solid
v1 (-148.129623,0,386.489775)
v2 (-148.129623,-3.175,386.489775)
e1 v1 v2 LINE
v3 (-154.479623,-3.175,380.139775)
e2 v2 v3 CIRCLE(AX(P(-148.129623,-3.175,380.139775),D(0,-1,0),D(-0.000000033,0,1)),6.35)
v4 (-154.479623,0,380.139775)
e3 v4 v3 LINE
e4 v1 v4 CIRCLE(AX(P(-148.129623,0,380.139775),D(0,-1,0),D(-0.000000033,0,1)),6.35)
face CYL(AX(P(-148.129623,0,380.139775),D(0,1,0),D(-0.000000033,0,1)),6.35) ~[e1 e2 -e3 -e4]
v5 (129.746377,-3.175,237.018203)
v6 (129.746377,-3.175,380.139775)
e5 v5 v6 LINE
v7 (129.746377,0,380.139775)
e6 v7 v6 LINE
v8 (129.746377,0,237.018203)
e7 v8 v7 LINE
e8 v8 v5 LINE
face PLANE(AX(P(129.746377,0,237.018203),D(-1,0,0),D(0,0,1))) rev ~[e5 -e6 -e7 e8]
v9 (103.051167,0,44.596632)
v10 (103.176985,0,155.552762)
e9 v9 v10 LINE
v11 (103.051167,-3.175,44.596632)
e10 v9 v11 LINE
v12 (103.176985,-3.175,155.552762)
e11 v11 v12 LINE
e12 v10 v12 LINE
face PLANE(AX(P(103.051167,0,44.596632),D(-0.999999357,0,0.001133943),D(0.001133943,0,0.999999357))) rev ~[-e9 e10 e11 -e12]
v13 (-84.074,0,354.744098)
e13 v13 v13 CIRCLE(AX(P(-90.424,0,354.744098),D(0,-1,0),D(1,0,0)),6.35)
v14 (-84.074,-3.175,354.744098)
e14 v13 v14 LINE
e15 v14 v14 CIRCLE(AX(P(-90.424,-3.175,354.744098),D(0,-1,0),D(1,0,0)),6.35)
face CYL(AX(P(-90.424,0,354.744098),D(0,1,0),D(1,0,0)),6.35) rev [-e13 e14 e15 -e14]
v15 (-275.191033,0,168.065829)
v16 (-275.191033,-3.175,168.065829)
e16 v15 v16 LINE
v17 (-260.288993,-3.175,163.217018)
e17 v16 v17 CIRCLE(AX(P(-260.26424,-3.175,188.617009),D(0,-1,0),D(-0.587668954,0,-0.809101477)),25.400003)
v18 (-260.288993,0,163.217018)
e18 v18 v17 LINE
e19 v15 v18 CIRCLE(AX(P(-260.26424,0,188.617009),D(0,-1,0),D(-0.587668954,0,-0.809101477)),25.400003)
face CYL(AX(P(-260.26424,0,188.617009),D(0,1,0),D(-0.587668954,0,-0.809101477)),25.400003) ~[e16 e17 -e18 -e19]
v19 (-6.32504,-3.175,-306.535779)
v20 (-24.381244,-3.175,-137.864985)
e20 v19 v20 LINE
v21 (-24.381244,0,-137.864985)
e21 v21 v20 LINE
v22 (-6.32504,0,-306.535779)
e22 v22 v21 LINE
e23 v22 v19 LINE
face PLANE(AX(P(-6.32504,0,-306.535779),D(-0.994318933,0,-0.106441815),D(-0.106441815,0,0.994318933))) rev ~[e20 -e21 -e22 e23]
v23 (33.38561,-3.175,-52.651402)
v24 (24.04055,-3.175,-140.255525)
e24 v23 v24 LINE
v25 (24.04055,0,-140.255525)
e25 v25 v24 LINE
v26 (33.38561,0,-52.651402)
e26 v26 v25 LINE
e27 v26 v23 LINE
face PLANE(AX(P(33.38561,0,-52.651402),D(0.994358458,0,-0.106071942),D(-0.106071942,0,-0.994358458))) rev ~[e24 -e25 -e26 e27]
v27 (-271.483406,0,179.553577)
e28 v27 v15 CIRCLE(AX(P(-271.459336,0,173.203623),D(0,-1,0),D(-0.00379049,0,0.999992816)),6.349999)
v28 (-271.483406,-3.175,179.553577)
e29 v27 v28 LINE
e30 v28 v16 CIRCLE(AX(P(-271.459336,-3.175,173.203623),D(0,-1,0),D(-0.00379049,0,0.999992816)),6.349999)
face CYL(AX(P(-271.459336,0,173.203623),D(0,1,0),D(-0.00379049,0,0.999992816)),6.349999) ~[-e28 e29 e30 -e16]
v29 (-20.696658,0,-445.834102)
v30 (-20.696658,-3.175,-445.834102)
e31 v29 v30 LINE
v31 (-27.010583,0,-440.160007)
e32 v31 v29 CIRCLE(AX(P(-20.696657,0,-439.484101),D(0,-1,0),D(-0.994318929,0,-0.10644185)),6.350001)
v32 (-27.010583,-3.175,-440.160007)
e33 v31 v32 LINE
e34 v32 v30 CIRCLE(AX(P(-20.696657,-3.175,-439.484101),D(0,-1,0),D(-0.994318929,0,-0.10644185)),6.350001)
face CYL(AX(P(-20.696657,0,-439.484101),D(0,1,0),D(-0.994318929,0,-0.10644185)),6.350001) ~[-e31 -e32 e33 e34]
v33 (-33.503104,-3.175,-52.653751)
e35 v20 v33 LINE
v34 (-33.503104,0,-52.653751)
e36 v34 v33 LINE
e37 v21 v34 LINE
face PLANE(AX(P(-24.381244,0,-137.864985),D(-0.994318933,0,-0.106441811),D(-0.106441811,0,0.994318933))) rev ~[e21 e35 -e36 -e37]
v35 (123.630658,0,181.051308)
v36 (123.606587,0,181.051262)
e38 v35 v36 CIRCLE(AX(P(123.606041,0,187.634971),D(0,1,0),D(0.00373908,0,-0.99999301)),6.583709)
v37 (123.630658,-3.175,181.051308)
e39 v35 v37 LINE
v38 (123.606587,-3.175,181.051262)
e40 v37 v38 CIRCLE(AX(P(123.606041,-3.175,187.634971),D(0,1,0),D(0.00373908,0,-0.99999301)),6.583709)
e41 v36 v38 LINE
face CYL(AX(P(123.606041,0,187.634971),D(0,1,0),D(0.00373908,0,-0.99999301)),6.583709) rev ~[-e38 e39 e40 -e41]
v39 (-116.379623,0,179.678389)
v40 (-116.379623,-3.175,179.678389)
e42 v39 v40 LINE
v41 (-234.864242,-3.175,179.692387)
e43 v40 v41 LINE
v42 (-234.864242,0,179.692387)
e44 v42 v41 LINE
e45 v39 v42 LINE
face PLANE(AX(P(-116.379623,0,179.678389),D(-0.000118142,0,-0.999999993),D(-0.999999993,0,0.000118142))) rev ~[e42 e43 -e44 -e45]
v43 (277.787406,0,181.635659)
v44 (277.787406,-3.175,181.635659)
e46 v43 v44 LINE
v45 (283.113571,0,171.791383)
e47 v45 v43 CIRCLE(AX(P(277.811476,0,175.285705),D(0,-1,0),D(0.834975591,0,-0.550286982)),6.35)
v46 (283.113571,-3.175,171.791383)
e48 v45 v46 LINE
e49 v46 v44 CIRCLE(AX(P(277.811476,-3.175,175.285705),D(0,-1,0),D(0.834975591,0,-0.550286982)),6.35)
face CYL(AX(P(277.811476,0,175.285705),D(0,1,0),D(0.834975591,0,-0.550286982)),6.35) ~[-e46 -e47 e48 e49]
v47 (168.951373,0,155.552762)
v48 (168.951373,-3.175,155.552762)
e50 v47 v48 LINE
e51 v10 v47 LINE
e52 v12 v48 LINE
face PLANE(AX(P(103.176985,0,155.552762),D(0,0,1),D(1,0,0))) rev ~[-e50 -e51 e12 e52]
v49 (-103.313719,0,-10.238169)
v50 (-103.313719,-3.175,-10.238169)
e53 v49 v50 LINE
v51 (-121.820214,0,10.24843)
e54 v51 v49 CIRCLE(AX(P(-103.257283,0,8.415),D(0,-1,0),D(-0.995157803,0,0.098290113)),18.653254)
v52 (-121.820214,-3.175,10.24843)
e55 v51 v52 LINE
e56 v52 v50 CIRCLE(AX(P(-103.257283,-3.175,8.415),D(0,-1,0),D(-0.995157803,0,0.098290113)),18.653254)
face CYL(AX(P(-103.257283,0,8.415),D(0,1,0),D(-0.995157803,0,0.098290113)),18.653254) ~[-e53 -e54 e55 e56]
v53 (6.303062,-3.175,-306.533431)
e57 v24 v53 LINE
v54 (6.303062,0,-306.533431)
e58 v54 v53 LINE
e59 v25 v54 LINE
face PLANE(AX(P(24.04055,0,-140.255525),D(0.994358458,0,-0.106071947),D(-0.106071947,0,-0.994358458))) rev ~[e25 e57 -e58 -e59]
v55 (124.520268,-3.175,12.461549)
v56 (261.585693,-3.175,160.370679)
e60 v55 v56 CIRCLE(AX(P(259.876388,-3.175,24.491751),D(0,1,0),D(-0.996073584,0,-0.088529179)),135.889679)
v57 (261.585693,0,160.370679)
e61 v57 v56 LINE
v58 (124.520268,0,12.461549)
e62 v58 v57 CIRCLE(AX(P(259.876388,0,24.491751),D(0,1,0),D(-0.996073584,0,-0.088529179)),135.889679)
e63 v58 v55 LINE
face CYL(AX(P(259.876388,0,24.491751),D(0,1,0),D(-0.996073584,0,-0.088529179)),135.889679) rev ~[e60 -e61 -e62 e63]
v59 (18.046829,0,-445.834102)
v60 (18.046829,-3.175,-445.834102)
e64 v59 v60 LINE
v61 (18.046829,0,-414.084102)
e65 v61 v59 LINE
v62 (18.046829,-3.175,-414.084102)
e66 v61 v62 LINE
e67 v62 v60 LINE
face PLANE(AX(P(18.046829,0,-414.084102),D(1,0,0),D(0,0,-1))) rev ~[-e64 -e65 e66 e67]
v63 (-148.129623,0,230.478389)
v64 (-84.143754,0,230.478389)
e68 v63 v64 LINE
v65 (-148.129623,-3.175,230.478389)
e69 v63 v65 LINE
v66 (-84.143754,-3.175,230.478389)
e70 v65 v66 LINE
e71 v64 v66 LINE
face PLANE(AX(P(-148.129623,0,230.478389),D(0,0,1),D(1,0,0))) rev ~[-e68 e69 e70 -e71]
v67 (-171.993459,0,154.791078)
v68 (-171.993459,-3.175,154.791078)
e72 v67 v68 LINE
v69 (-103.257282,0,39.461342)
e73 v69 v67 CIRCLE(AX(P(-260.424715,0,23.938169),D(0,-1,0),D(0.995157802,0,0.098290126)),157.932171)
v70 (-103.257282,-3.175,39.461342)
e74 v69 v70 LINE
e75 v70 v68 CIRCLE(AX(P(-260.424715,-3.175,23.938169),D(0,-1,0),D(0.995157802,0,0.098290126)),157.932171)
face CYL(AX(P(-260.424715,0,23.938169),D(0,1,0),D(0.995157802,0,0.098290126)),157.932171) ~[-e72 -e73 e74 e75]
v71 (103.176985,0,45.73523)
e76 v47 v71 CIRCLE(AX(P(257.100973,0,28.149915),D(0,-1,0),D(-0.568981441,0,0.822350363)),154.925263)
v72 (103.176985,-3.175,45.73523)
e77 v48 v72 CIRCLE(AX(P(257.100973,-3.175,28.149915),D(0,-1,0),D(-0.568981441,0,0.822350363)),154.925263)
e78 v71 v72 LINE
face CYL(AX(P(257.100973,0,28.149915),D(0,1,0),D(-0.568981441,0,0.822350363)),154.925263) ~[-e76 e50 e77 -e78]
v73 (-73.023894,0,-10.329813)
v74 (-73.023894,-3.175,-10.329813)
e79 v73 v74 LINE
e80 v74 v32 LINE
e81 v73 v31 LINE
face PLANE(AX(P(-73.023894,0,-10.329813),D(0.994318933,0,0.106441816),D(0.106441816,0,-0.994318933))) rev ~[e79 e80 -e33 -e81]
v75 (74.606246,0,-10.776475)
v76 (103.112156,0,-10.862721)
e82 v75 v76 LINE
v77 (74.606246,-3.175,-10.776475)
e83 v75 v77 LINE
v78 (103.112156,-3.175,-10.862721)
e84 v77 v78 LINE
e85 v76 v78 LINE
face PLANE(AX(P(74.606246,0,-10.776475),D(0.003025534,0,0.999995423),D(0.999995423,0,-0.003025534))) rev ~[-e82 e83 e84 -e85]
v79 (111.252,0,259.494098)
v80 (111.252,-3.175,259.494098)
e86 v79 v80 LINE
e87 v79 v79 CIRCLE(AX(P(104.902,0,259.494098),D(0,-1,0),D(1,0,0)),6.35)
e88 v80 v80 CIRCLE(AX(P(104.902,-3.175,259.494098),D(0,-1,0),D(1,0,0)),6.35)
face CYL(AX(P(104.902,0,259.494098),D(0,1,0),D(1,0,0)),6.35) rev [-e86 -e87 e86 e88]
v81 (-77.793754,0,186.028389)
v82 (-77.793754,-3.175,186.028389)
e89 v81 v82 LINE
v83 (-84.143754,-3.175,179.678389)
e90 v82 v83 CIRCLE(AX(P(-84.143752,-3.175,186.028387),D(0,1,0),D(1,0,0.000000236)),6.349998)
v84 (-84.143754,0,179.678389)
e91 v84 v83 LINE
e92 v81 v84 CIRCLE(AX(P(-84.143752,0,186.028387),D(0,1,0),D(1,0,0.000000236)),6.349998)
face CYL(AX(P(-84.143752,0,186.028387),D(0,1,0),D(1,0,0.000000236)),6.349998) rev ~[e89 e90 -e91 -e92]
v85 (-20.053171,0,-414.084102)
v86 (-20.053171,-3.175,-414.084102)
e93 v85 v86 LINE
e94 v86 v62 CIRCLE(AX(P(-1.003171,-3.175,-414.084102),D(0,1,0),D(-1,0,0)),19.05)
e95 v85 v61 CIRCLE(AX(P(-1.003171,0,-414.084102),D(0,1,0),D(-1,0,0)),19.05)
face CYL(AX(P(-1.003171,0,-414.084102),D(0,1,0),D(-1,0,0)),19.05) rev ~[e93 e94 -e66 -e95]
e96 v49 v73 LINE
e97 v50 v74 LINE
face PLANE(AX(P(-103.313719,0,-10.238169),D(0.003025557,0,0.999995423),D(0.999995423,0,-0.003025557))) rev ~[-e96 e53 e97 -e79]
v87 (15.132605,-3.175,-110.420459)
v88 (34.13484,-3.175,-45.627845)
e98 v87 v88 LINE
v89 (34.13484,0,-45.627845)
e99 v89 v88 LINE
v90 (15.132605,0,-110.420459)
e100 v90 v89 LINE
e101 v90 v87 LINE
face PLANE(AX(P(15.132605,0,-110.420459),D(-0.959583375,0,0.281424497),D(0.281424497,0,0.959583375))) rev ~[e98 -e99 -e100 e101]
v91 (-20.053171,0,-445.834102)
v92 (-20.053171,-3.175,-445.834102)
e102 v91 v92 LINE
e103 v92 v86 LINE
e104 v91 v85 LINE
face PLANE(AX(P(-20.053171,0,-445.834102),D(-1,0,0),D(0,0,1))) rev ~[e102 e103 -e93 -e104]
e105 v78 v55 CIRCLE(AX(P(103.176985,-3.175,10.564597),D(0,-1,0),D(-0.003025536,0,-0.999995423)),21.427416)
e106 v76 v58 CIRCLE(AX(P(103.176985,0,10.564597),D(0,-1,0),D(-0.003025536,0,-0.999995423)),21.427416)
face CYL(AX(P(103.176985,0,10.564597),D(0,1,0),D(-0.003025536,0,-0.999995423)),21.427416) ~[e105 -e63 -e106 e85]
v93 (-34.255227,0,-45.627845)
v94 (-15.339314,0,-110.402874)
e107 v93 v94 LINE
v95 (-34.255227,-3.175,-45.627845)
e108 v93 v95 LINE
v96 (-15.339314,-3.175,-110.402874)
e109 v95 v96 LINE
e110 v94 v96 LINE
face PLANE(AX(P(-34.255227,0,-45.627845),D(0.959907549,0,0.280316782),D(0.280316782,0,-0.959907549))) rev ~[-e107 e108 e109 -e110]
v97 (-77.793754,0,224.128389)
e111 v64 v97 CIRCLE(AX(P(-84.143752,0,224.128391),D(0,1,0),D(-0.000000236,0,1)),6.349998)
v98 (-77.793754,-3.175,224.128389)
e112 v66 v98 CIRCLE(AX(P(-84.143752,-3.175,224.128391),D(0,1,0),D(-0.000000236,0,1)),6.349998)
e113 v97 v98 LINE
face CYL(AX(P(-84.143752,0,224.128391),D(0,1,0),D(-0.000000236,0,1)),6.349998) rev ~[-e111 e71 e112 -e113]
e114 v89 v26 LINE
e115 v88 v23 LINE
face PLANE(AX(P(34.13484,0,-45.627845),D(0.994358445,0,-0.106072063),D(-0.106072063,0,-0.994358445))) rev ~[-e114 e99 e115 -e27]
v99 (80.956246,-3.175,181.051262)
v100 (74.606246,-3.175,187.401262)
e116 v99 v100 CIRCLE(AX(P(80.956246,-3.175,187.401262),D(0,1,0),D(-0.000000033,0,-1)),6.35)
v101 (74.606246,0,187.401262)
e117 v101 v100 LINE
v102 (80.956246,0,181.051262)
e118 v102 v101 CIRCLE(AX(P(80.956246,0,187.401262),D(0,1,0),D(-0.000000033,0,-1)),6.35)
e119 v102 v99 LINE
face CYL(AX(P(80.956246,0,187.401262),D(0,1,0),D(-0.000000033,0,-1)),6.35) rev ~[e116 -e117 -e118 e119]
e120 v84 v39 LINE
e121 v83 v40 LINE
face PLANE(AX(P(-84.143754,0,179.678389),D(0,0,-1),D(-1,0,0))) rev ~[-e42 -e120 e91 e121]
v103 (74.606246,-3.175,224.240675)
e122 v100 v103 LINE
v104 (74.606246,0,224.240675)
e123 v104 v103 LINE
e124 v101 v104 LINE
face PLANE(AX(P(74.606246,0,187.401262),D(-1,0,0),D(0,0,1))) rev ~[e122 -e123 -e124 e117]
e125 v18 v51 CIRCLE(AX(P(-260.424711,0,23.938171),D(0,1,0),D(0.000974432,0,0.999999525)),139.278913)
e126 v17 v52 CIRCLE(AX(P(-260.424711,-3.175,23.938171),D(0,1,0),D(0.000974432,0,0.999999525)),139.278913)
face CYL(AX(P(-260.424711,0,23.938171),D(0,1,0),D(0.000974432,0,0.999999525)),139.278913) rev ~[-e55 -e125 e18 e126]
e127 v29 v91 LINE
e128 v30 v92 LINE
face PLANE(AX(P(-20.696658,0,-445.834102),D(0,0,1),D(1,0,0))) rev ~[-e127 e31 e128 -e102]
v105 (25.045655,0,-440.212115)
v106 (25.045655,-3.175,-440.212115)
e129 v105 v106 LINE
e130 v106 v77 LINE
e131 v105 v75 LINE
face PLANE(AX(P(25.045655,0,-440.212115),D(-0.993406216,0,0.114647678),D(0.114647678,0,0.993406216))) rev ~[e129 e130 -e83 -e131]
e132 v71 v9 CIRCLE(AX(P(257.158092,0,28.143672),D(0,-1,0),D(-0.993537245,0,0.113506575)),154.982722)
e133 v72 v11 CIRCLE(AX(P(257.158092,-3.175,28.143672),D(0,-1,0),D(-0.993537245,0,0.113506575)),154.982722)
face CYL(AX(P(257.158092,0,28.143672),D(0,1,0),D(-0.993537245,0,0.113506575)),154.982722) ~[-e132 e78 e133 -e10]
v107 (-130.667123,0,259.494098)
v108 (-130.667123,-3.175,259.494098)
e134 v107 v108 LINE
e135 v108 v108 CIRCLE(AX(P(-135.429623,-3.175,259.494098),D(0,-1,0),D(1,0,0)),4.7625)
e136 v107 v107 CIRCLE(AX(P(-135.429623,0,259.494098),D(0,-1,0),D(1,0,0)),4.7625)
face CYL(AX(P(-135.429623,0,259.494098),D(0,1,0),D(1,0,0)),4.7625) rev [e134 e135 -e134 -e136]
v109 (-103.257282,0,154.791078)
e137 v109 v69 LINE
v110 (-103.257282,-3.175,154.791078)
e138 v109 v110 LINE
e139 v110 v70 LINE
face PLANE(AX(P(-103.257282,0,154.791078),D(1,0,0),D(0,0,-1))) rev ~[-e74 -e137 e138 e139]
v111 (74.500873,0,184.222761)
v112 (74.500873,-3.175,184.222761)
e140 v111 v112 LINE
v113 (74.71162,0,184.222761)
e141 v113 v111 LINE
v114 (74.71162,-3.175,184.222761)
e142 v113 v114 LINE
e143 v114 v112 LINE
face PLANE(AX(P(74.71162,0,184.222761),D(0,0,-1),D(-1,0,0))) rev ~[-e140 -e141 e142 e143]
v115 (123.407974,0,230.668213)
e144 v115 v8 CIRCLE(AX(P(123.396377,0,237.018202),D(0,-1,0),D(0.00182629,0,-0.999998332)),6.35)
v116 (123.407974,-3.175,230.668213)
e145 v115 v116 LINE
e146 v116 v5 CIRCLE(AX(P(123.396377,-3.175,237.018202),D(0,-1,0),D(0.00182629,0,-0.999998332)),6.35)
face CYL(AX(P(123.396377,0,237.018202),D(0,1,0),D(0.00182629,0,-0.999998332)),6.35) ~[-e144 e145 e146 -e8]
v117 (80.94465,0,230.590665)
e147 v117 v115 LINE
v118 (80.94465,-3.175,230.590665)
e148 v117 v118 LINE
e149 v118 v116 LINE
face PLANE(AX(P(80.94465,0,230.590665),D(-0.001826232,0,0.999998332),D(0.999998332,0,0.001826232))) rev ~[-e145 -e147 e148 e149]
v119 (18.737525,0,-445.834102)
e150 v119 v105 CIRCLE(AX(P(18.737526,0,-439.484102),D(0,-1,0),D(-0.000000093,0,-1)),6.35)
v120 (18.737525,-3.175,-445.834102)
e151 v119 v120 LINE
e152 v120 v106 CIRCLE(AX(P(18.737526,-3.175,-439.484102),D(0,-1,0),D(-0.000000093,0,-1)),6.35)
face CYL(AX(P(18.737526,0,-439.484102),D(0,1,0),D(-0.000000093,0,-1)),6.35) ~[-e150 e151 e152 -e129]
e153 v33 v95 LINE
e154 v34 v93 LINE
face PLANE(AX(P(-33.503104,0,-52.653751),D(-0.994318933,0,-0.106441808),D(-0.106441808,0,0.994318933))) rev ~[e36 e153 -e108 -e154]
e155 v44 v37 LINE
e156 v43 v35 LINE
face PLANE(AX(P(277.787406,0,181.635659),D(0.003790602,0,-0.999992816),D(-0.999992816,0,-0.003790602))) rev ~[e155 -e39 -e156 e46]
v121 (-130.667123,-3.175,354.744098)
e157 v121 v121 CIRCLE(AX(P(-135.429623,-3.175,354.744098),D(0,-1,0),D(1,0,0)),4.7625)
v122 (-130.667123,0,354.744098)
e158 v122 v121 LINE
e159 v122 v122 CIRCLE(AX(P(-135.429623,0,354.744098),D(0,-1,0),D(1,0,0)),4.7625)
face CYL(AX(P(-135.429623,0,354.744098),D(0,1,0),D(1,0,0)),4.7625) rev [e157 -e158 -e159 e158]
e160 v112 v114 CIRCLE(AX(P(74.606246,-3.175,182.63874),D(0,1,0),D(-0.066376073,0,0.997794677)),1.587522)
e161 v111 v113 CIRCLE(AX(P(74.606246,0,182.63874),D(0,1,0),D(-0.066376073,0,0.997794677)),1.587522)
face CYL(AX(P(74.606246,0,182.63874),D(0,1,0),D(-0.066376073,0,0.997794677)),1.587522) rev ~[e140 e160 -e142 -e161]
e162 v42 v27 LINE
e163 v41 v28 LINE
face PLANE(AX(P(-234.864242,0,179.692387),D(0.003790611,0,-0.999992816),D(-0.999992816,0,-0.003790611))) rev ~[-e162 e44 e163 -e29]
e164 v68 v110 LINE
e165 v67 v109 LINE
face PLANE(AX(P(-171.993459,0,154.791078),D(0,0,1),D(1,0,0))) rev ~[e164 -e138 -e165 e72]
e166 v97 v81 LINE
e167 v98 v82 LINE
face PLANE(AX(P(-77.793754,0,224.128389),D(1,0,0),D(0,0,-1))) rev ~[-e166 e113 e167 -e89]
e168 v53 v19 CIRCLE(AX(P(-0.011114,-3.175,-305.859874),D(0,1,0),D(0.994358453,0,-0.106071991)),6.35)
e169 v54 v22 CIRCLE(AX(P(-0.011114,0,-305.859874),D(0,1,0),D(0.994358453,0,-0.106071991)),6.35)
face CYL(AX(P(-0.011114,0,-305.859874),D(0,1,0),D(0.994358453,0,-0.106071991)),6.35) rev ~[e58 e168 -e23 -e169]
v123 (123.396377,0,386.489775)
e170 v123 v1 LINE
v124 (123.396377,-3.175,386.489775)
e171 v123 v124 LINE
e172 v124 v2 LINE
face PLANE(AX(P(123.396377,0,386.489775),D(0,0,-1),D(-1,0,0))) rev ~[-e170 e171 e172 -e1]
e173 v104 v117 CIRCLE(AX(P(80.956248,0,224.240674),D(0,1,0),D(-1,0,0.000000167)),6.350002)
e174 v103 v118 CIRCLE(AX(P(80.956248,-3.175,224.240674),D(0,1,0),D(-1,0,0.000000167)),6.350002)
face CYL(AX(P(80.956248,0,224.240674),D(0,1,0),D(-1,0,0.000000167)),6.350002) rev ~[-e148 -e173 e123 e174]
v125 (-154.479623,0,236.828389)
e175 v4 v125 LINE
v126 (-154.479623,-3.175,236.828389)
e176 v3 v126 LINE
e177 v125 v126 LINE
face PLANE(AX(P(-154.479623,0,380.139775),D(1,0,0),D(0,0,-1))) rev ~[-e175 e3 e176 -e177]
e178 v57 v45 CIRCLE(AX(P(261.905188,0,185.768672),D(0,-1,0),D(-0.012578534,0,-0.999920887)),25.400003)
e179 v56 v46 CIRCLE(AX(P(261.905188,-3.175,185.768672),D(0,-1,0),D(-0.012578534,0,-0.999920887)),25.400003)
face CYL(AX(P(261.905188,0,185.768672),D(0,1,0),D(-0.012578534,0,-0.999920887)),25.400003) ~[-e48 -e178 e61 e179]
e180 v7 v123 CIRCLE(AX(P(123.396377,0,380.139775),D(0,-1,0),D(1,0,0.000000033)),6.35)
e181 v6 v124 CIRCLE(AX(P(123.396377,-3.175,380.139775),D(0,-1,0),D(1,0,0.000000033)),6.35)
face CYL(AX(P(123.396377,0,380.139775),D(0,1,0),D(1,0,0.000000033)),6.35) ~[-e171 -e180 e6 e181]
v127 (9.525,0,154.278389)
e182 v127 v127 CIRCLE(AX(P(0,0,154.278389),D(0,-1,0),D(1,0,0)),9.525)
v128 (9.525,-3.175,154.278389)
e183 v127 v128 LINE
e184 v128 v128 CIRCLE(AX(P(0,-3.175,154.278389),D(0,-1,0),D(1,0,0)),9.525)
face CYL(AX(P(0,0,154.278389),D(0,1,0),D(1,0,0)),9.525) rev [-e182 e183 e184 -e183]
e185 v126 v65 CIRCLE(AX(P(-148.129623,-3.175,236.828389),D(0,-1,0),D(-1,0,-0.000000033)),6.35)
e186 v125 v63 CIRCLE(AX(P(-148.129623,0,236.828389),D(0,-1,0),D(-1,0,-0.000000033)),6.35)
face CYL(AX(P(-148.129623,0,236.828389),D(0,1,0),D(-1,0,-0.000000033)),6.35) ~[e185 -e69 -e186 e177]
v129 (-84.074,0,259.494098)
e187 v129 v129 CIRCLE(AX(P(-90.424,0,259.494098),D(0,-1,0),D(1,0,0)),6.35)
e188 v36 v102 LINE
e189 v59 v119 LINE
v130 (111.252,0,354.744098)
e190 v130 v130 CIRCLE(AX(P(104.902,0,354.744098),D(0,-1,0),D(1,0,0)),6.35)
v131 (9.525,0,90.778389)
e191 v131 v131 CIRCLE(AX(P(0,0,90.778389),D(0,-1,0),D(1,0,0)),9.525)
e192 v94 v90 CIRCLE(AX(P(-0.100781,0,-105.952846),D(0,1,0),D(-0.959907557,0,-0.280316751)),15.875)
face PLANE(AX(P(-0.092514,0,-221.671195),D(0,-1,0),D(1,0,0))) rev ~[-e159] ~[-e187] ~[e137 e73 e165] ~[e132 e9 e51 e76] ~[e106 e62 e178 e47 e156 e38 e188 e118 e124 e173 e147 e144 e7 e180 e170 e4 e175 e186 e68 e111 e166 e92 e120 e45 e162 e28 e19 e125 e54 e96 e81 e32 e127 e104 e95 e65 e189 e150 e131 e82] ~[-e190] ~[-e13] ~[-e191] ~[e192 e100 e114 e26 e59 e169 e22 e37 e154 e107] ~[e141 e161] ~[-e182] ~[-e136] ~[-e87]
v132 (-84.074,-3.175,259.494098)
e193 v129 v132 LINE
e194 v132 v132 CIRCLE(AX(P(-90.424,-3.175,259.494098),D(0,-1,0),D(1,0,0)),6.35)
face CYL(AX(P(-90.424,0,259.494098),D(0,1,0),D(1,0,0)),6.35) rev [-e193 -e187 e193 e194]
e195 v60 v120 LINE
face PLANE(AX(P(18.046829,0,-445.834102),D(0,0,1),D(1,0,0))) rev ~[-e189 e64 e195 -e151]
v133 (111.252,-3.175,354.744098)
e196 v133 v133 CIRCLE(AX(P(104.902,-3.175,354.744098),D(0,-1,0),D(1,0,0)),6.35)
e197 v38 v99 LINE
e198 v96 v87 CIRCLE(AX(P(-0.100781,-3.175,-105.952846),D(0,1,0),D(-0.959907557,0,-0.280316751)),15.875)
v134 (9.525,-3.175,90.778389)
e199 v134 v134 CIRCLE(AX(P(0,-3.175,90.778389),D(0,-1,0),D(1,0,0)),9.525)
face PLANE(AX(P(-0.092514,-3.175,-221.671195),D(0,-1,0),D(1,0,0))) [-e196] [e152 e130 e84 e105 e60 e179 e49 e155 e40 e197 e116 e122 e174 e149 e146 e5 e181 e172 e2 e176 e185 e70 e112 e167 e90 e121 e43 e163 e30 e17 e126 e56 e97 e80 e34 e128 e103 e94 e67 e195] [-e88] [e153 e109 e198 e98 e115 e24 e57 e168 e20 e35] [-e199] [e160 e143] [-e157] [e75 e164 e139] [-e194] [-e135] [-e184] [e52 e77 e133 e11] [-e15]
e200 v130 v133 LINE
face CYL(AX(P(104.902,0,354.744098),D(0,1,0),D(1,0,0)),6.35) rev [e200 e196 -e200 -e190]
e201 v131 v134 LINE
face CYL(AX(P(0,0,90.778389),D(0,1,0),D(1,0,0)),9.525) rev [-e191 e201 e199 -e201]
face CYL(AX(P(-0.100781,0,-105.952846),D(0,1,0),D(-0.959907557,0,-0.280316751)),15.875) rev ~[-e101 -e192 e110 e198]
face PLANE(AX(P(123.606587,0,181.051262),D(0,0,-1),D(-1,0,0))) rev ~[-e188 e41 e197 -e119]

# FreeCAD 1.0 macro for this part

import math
import FreeCAD as App
import Part
import Sketcher
from FreeCAD import Vector
Q = App.Units.Quantity

doc = App.newDocument("Part")
params = doc.addObject("Spreadsheet::Sheet", "Params")
for row, (alias, value) in enumerate([
    ("sketch1_radius", "1.0000001 in"),
    ("sketch1_radius2", "1.0000001 in"),
    ("sketch1_diameter", "0.5 in"),
    ("sketch1_diameter2", "0.5 in"),
    ("sketch1_diameter3", "0.5 in"),
    ("pad1_length", "0.125 in"),
], start=1):
    params.set(f"A{row}", alias)
    params.set(f"B{row}", "=" + value)
    params.setAlias(f"B{row}", alias)

body = doc.addObject("PartDesign::Body", "Body")

# Sketch on XZ plane
sketch1 = doc.addObject("Sketcher::SketchObject", "Sketch")
body.addObject(sketch1)
sketch1.AttachmentSupport = (doc.XZ_Plane, [""])
sketch1.MapMode = "FlatFace"
sketch1.addGeometry(Part.LineSegment(Vector(25.045655, -440.212115, 0), Vector(74.606246, -10.776475, 0)), False)
sketch1.addGeometry(Part.LineSegment(Vector(74.606246, -10.776475, 0), Vector(103.112156, -10.862721, 0)), False)
sketch1.addGeometry(Part.ArcOfCircle(Part.Circle(Vector(103.176985, 10.564597, 0), Vector(0, 0, 1), 21.427416), math.radians(-90.173351), math.radians(5.079)), False)
sketch1.addGeometry(Part.ArcOfCircle(Part.Circle(Vector(259.876388, 24.491751, 0), Vector(0, 0, 1), 135.889679), math.radians(89.279279), math.radians(185.078997)), False)
sketch1.addGeometry(Part.ArcOfCircle(Part.Circle(Vector(261.905188, 185.768672, 0), Vector(0, 0, 1), 25.400003), math.radians(-90.720716), math.radians(-33.386699)), False)
sketch1.addGeometry(Part.ArcOfCircle(Part.Circle(Vector(277.811476, 175.285705, 0), Vector(0, 0, 1), 6.35), math.radians(-33.386703), math.radians(90.217187)), False)
sketch1.addGeometry(Part.LineSegment(Vector(277.787406, 181.635659, 0), Vector(123.630658, 181.051308, 0)), False)
sketch1.addGeometry(Part.ArcOfCircle(Part.Circle(Vector(123.606041, 187.634971, 0), Vector(0, 0, 1), 6.583709), math.radians(-89.995248), math.radians(-89.785766)), False)
sketch1.addGeometry(Part.LineSegment(Vector(123.606587, 181.051262, 0), Vector(80.956246, 181.051262, 0)), False)
sketch1.addGeometry(Part.ArcOfCircle(Part.Circle(Vector(80.956246, 187.401262, 0), Vector(0, 0, 1), 6.35), math.radians(-179.999998), math.radians(-90.000002)), False)
sketch1.addGeometry(Part.LineSegment(Vector(74.606246, 187.401262, 0), Vector(74.606246, 224.240675, 0)), False)
sketch1.addGeometry(Part.ArcOfCircle(Part.Circle(Vector(80.956248, 224.240674, 0), Vector(0, 0, 1), 6.350002), math.radians(90.104645), math.radians(179.99999)), False)
sketch1.addGeometry(Part.LineSegment(Vector(80.94465, 230.590665, 0), Vector(123.407974, 230.668213, 0)), False)
sketch1.addGeometry(Part.ArcOfCircle(Part.Circle(Vector(123.396377, 237.018202, 0), Vector(0, 0, 1), 6.35), math.radians(-89.895361), math.radians(0.000006)), False)
sketch1.addGeometry(Part.LineSegment(Vector(129.746377, 237.018203, 0), Vector(129.746377, 380.139775, 0)), False)
sketch1.addGeometry(Part.ArcOfCircle(Part.Circle(Vector(123.396377, 380.139775, 0), Vector(0, 0, 1), 6.35), math.radians(0.000002), math.radians(89.999998)), False)
sketch1.addGeometry(Part.LineSegment(Vector(123.396377, 386.489775, 0), Vector(-148.129623, 386.489775, 0)), False)
sketch1.addGeometry(Part.ArcOfCircle(Part.Circle(Vector(-148.129623, 380.139775, 0), Vector(0, 0, 1), 6.35), math.radians(90.000002), math.radians(179.999998)), False)
sketch1.addGeometry(Part.LineSegment(Vector(-154.479623, 380.139775, 0), Vector(-154.479623, 236.828389, 0)), False)
sketch1.addGeometry(Part.ArcOfCircle(Part.Circle(Vector(-148.129623, 236.828389, 0), Vector(0, 0, 1), 6.35), math.radians(-179.999998), math.radians(-90.000002)), False)
sketch1.addGeometry(Part.LineSegment(Vector(-148.129623, 230.478389, 0), Vector(-84.143754, 230.478389, 0)), False)
sketch1.addGeometry(Part.ArcOfCircle(Part.Circle(Vector(-84.143753, 224.12839, 0), Vector(0, 0, 1), 6.349998), math.radians(-0.000014), math.radians(90.000014)), False)
sketch1.addGeometry(Part.LineSegment(Vector(-77.793754, 224.128389, 0), Vector(-77.793754, 186.028389, 0)), False)
sketch1.addGeometry(Part.ArcOfCircle(Part.Circle(Vector(-84.143753, 186.028388, 0), Vector(0, 0, 1), 6.349998), math.radians(-90.000014), math.radians(0.000014)), False)
sketch1.addGeometry(Part.LineSegment(Vector(-84.143754, 179.678389, 0), Vector(-116.379623, 179.678389, 0)), False)
sketch1.addGeometry(Part.LineSegment(Vector(-116.379623, 179.678389, 0), Vector(-234.864242, 179.692387, 0)), False)
sketch1.addGeometry(Part.LineSegment(Vector(-234.864242, 179.692387, 0), Vector(-271.483406, 179.553577, 0)), False)
sketch1.addGeometry(Part.ArcOfCircle(Part.Circle(Vector(-271.459336, 173.203623, 0), Vector(0, 0, 1), 6.349999), math.radians(90.21718), math.radians(234.008245)), False)
sketch1.addGeometry(Part.ArcOfCircle(Part.Circle(Vector(-260.26424, 188.617009, 0), Vector(0, 0, 1), 25.400003), math.radians(-125.991764), math.radians(-90.055837)), False)
sketch1.addGeometry(Part.ArcOfCircle(Part.Circle(Vector(-260.424711, 23.938171, 0), Vector(0, 0, 1), 139.278913), math.radians(-5.640717), math.radians(89.944169)), False)
sketch1.addGeometry(Part.ArcOfCircle(Part.Circle(Vector(-103.257283, 8.415, 0), Vector(0, 0, 1), 18.653254), math.radians(174.359284), math.radians(269.826649)), False)
sketch1.addGeometry(Part.LineSegment(Vector(-103.313719, -10.238169, 0), Vector(-73.023894, -10.329813, 0)), False)
sketch1.addGeometry(Part.LineSegment(Vector(-73.023894, -10.329813, 0), Vector(-27.010583, -440.160007, 0)), False)
sketch1.addGeometry(Part.ArcOfCircle(Part.Circle(Vector(-20.696657, -439.484101, 0), Vector(0, 0, 1), 6.350001), math.radians(-173.889756), math.radians(-90.000009)), False)
sketch1.addGeometry(Part.LineSegment(Vector(-20.696658, -445.834102, 0), Vector(-20.053171, -445.834102, 0)), False)
sketch1.addGeometry(Part.LineSegment(Vector(-20.053171, -445.834102, 0), Vector(-20.053171, -414.084102, 0)), False)
sketch1.addGeometry(Part.ArcOfCircle(Part.Circle(Vector(-1.003171, -414.084102, 0), Vector(0, 0, 1), 19.05), math.radians(0), math.radians(180)), False)
sketch1.addGeometry(Part.LineSegment(Vector(18.046829, -414.084102, 0), Vector(18.046829, -445.834102, 0)), False)
sketch1.addGeometry(Part.LineSegment(Vector(18.046829, -445.834102, 0), Vector(18.737525, -445.834102, 0)), False)
sketch1.addGeometry(Part.ArcOfCircle(Part.Circle(Vector(18.737526, -439.484102, 0), Vector(0, 0, 1), 6.35), math.radians(-90.000005), math.radians(-6.583306)), False)
sketch1.addGeometry(Part.ArcOfCircle(Part.Circle(Vector(-0.011114, -305.859874, 0), Vector(0, 0, 1), 6.35), math.radians(-173.889761), math.radians(-6.088932)), False)
sketch1.addGeometry(Part.LineSegment(Vector(-6.32504, -306.535779, 0), Vector(-24.381244, -137.864985, 0)), False)
sketch1.addGeometry(Part.LineSegment(Vector(-24.381244, -137.864985, 0), Vector(-33.503104, -52.653751, 0)), False)
sketch1.addGeometry(Part.LineSegment(Vector(-33.503104, -52.653751, 0), Vector(-34.255227, -45.627845, 0)), False)
sketch1.addGeometry(Part.LineSegment(Vector(-34.255227, -45.627845, 0), Vector(-15.339314, -110.402874, 0)), False)
sketch1.addGeometry(Part.ArcOfCircle(Part.Circle(Vector(-0.100781, -105.952846, 0), Vector(0, 0, 1), 15.875), math.radians(-16.34524), math.radians(196.27911)), False)
sketch1.addGeometry(Part.LineSegment(Vector(15.132605, -110.420459, 0), Vector(34.13484, -45.627845, 0)), False)
sketch1.addGeometry(Part.LineSegment(Vector(34.13484, -45.627845, 0), Vector(33.38561, -52.651402, 0)), False)
sketch1.addGeometry(Part.LineSegment(Vector(33.38561, -52.651402, 0), Vector(24.04055, -140.255525, 0)), False)
sketch1.addGeometry(Part.LineSegment(Vector(24.04055, -140.255525, 0), Vector(6.303062, -306.533431, 0)), False)
sketch1.addGeometry(Part.LineSegment(Vector(-171.993459, 154.791078, 0), Vector(-103.257282, 154.791078, 0)), False)
sketch1.addGeometry(Part.LineSegment(Vector(-103.257282, 154.791078, 0), Vector(-103.257282, 39.461342, 0)), False)
sketch1.addGeometry(Part.ArcOfCircle(Part.Circle(Vector(-260.424714, 23.938169, 0), Vector(0, 0, 1), 157.932171), math.radians(5.640717), math.radians(55.948914)), False)
sketch1.addGeometry(Part.Circle(Vector(-135.429623, 259.494098, 0), Vector(0, 0, 1), 4.7625), False)
sketch1.addGeometry(Part.Circle(Vector(-90.424, 259.494098, 0), Vector(0, 0, 1), 6.35), False)
sketch1.addGeometry(Part.Circle(Vector(-135.429623, 354.744098, 0), Vector(0, 0, 1), 4.7625), False)
sketch1.addGeometry(Part.Circle(Vector(-90.424, 354.744098, 0), Vector(0, 0, 1), 6.35), False)
sketch1.addGeometry(Part.Circle(Vector(0, 90.778389, 0), Vector(0, 0, 1), 9.525), False)
sketch1.addGeometry(Part.Circle(Vector(0, 154.278389, 0), Vector(0, 0, 1), 9.525), False)
sketch1.addGeometry(Part.LineSegment(Vector(74.71162, 184.222761, 0), Vector(74.500873, 184.222761, 0)), False)
sketch1.addGeometry(Part.ArcOfCircle(Part.Circle(Vector(74.606246, 182.63874, 0), Vector(0, 0, 1), 1.587522), math.radians(86.194133), math.radians(93.805867)), False)
sketch1.addGeometry(Part.ArcOfCircle(Part.Circle(Vector(257.158092, 28.143672, 0), Vector(0, 0, 1), 154.982722), math.radians(173.482506), math.radians(173.905999)), False)
sketch1.addGeometry(Part.LineSegment(Vector(103.051167, 44.596632, 0), Vector(103.176985, 155.552762, 0)), False)
sketch1.addGeometry(Part.LineSegment(Vector(103.176985, 155.552762, 0), Vector(168.951373, 155.552762, 0)), False)
sketch1.addGeometry(Part.ArcOfCircle(Part.Circle(Vector(257.100973, 28.149915, 0), Vector(0, 0, 1), 154.925263), math.radians(124.679229), math.radians(173.482402)), False)
sketch1.addGeometry(Part.Circle(Vector(104.902, 259.494098, 0), Vector(0, 0, 1), 6.35), False)
sketch1.addGeometry(Part.Circle(Vector(104.902, 354.744098, 0), Vector(0, 0, 1), 6.35), False)
sketch1.addConstraint(Sketcher.Constraint("Coincident", 0, 2, 1, 1))
sketch1.addConstraint(Sketcher.Constraint("Coincident", 1, 2, 2, 1))
sketch1.addConstraint(Sketcher.Constraint("Coincident", 2, 2, 3, 2))
sketch1.addConstraint(Sketcher.Constraint("Coincident", 3, 1, 4, 1))
sketch1.addConstraint(Sketcher.Constraint("Coincident", 4, 2, 5, 1))
sketch1.addConstraint(Sketcher.Constraint("Coincident", 5, 2, 6, 1))
sketch1.addConstraint(Sketcher.Constraint("Coincident", 6, 2, 7, 2))
sketch1.addConstraint(Sketcher.Constraint("Coincident", 7, 1, 8, 1))
sketch1.addConstraint(Sketcher.Constraint("Coincident", 8, 2, 9, 2))
sketch1.addConstraint(Sketcher.Constraint("Coincident", 9, 1, 10, 1))
sketch1.addConstraint(Sketcher.Constraint("Coincident", 10, 2, 11, 2))
sketch1.addConstraint(Sketcher.Constraint("Coincident", 11, 1, 12, 1))
sketch1.addConstraint(Sketcher.Constraint("Coincident", 12, 2, 13, 1))
sketch1.addConstraint(Sketcher.Constraint("Coincident", 13, 2, 14, 1))
sketch1.addConstraint(Sketcher.Constraint("Coincident", 14, 2, 15, 1))
sketch1.addConstraint(Sketcher.Constraint("Coincident", 15, 2, 16, 1))
sketch1.addConstraint(Sketcher.Constraint("Coincident", 16, 2, 17, 1))
sketch1.addConstraint(Sketcher.Constraint("Coincident", 17, 2, 18, 1))
sketch1.addConstraint(Sketcher.Constraint("Coincident", 18, 2, 19, 1))
sketch1.addConstraint(Sketcher.Constraint("Coincident", 19, 2, 20, 1))
sketch1.addConstraint(Sketcher.Constraint("Coincident", 20, 2, 21, 2))
sketch1.addConstraint(Sketcher.Constraint("Coincident", 21, 1, 22, 1))
sketch1.addConstraint(Sketcher.Constraint("Coincident", 22, 2, 23, 2))
sketch1.addConstraint(Sketcher.Constraint("Coincident", 23, 1, 24, 1))
sketch1.addConstraint(Sketcher.Constraint("Coincident", 24, 2, 25, 1))
sketch1.addConstraint(Sketcher.Constraint("Coincident", 25, 2, 26, 1))
sketch1.addConstraint(Sketcher.Constraint("Coincident", 26, 2, 27, 1))
sketch1.addConstraint(Sketcher.Constraint("Coincident", 27, 2, 28, 1))
sketch1.addConstraint(Sketcher.Constraint("Coincident", 28, 2, 29, 2))
sketch1.addConstraint(Sketcher.Constraint("Coincident", 29, 1, 30, 1))
sketch1.addConstraint(Sketcher.Constraint("Coincident", 30, 2, 31, 1))
sketch1.addConstraint(Sketcher.Constraint("Coincident", 31, 2, 32, 1))
sketch1.addConstraint(Sketcher.Constraint("Coincident", 32, 2, 33, 1))
sketch1.addConstraint(Sketcher.Constraint("Coincident", 33, 2, 34, 1))
sketch1.addConstraint(Sketcher.Constraint("Coincident", 34, 2, 35, 1))
sketch1.addConstraint(Sketcher.Constraint("Coincident", 35, 2, 36, 2))
sketch1.addConstraint(Sketcher.Constraint("Coincident", 36, 1, 37, 1))
sketch1.addConstraint(Sketcher.Constraint("Coincident", 37, 2, 38, 1))
sketch1.addConstraint(Sketcher.Constraint("Coincident", 38, 2, 39, 1))
sketch1.addConstraint(Sketcher.Constraint("Coincident", 39, 2, 0, 1))
sketch1.addConstraint(Sketcher.Constraint("Coincident", 40, 1, 41, 1))
sketch1.addConstraint(Sketcher.Constraint("Coincident", 41, 2, 42, 1))
sketch1.addConstraint(Sketcher.Constraint("Coincident", 42, 2, 43, 1))
sketch1.addConstraint(Sketcher.Constraint("Coincident", 43, 2, 44, 1))
sketch1.addConstraint(Sketcher.Constraint("Coincident", 44, 2, 45, 2))
sketch1.addConstraint(Sketcher.Constraint("Coincident", 45, 1, 46, 1))
sketch1.addConstraint(Sketcher.Constraint("Coincident", 46, 2, 47, 1))
sketch1.addConstraint(Sketcher.Constraint("Coincident", 47, 2, 48, 1))
sketch1.addConstraint(Sketcher.Constraint("Coincident", 48, 2, 49, 1))
sketch1.addConstraint(Sketcher.Constraint("Coincident", 49, 2, 40, 2))
sketch1.addConstraint(Sketcher.Constraint("Coincident", 50, 2, 51, 1))
sketch1.addConstraint(Sketcher.Constraint("Coincident", 51, 2, 52, 1))
sketch1.addConstraint(Sketcher.Constraint("Coincident", 52, 2, 50, 1))
sketch1.addConstraint(Sketcher.Constraint("Coincident", 59, 1, 60, 1))
sketch1.addConstraint(Sketcher.Constraint("Coincident", 60, 2, 59, 2))
sketch1.addConstraint(Sketcher.Constraint("Coincident", 61, 2, 62, 1))
sketch1.addConstraint(Sketcher.Constraint("Coincident", 62, 2, 63, 1))
sketch1.addConstraint(Sketcher.Constraint("Coincident", 63, 2, 64, 1))
sketch1.addConstraint(Sketcher.Constraint("Coincident", 64, 2, 61, 1))
sketch1.addConstraint(Sketcher.Constraint("Horizontal", 8))
sketch1.addConstraint(Sketcher.Constraint("Vertical", 10))
sketch1.addConstraint(Sketcher.Constraint("Vertical", 14))
sketch1.addConstraint(Sketcher.Constraint("Horizontal", 16))
sketch1.addConstraint(Sketcher.Constraint("Vertical", 18))
sketch1.addConstraint(Sketcher.Constraint("Horizontal", 20))
sketch1.addConstraint(Sketcher.Constraint("Vertical", 22))
sketch1.addConstraint(Sketcher.Constraint("Horizontal", 24))
sketch1.addConstraint(Sketcher.Constraint("Horizontal", 34))
sketch1.addConstraint(Sketcher.Constraint("Vertical", 35))
sketch1.addConstraint(Sketcher.Constraint("Vertical", 37))
sketch1.addConstraint(Sketcher.Constraint("Horizontal", 38))
sketch1.addConstraint(Sketcher.Constraint("Horizontal", 50))
sketch1.addConstraint(Sketcher.Constraint("Vertical", 51))
sketch1.addConstraint(Sketcher.Constraint("Horizontal", 59))
sketch1.addConstraint(Sketcher.Constraint("Horizontal", 63))
sketch1.addConstraint(Sketcher.Constraint("Coincident", 52, 3, 29, 3))
sketch1.addConstraint(Sketcher.Constraint("PointOnObject", 57, 3, -2))
sketch1.addConstraint(Sketcher.Constraint("PointOnObject", 58, 3, -2))
sketch1.addConstraint(Sketcher.Constraint("Radius", 4, Q("1.0000001 in")))
sketch1.addConstraint(Sketcher.Constraint("Radius", 28, Q("1.0000001 in")))
sketch1.addConstraint(Sketcher.Constraint("Diameter", 54, Q("0.5 in")))
sketch1.addConstraint(Sketcher.Constraint("Diameter", 56, Q("0.5 in")))
sketch1.addConstraint(Sketcher.Constraint("Diameter", 65, Q("0.5 in")))
sketch1.addConstraint(Sketcher.Constraint("Diameter", 66, Q("0.5 in")))
sketch1.addConstraint(Sketcher.Constraint("Diameter", 57, Q("0.75 in")))
sketch1.addConstraint(Sketcher.Constraint("Diameter", 58, Q("0.75 in")))
sketch1.addConstraint(Sketcher.Constraint("Radius", 5, Q("0.25 in")))
sketch1.addConstraint(Sketcher.Constraint("Radius", 9, Q("0.25 in")))
sketch1.addConstraint(Sketcher.Constraint("Radius", 11, Q("0.2500001 in")))
sketch1.addConstraint(Sketcher.Constraint("Radius", 13, Q("0.25 in")))
sketch1.addConstraint(Sketcher.Constraint("Radius", 15, Q("0.25 in")))
sketch1.addConstraint(Sketcher.Constraint("Radius", 17, Q("0.25 in")))
sketch1.addConstraint(Sketcher.Constraint("Radius", 19, Q("0.25 in")))
sketch1.addConstraint(Sketcher.Constraint("Radius", 21, Q("0.2499999 in")))
sketch1.addConstraint(Sketcher.Constraint("Radius", 23, Q("0.2499999 in")))
sketch1.addConstraint(Sketcher.Constraint("Radius", 27, Q("0.25 in")))
sketch1.addConstraint(Sketcher.Constraint("Radius", 33, Q("0.25 in")))
sketch1.addConstraint(Sketcher.Constraint("Radius", 36, Q("0.75 in")))
sketch1.addConstraint(Sketcher.Constraint("Radius", 39, Q("0.25 in")))
sketch1.addConstraint(Sketcher.Constraint("Radius", 40, Q("0.25 in")))
sketch1.addConstraint(Sketcher.Constraint("Diameter", 53, Q("0.375 in")))
sketch1.addConstraint(Sketcher.Constraint("Diameter", 55, Q("0.375 in")))
sketch1.addConstraint(Sketcher.Constraint("DistanceY", 22, 2, 22, 1, Q("1.5 in")))
sketch1.addConstraint(Sketcher.Constraint("Radius", 45, Q("0.625 in")))
sketch1.addConstraint(Sketcher.Constraint("DistanceX", 16, 2, 16, 1, Q("10.69 in")))
sketch1.addConstraint(Sketcher.Constraint("DistanceY", 35, 1, 35, 2, Q("1.25 in")))
sketch1.addConstraint(Sketcher.Constraint("DistanceY", 37, 2, 37, 1, Q("1.25 in")))
sketch1.addConstraint(Sketcher.Constraint("DistanceX", 54, 3, -1, 1, Q("3.56 in")))
sketch1.addConstraint(Sketcher.Constraint("DistanceX", 56, 3, -1, 1, Q("3.56 in")))
sketch1.addConstraint(Sketcher.Constraint("DistanceX", -1, 1, 65, 3, Q("4.13 in")))
sketch1.addConstraint(Sketcher.Constraint("DistanceX", -1, 1, 66, 3, Q("4.13 in")))
sketch1.addConstraint(Sketcher.Constraint("Radius", 3, 135.889679))
sketch1.addConstraint(Sketcher.Constraint("Radius", 7, 6.583709))
sketch1.addConstraint(Sketcher.Constraint("Radius", 52, 157.932171))
sketch1.addConstraint(Sketcher.Constraint("Radius", 2, 21.427416))
sketch1.addConstraint(Sketcher.Constraint("Radius", 29, 139.278913))
sketch1.addConstraint(Sketcher.Constraint("Radius", 30, 18.653254))
sketch1.addConstraint(Sketcher.Constraint("Radius", 60, 1.587522))
sketch1.addConstraint(Sketcher.Constraint("Radius", 61, 154.982722))
sketch1.addConstraint(Sketcher.Constraint("Radius", 64, 154.925263))
sketch1.addConstraint(Sketcher.Constraint("Distance", 41, 169.634499))
sketch1.addConstraint(Sketcher.Constraint("Distance", 62, 110.956201))
sketch1.addConstraint(Sketcher.Constraint("DistanceX", 8, 2, 8, 1, 42.650341))
sketch1.addConstraint(Sketcher.Constraint("DistanceX", 20, 1, 20, 2, 63.985869))
sketch1.addConstraint(Sketcher.Constraint("DistanceX", 24, 2, 24, 1, 32.235869))
sketch1.addConstraint(Sketcher.Constraint("DistanceY", 14, 1, 14, 2, 143.121572))
sketch1.addConstraint(Sketcher.Constraint("DistanceY", -1, 1, 30, 3, 8.415))
sketch1.addConstraint(Sketcher.Constraint("DistanceY", 33, 3, -1, 1, 439.484101))
sketch1.addConstraint(Sketcher.Constraint("DistanceY", 36, 3, -1, 1, 414.084102))
sketch1.addConstraint(Sketcher.Constraint("DistanceY", -1, 1, 53, 3, 259.494098))
sketch1.addConstraint(Sketcher.Constraint("DistanceY", -1, 1, 54, 3, 259.494098))
sketch1.addConstraint(Sketcher.Constraint("DistanceY", -1, 1, 55, 3, 354.744098))
sketch1.addConstraint(Sketcher.Constraint("DistanceY", -1, 1, 56, 3, 354.744098))
sketch1.addConstraint(Sketcher.Constraint("DistanceY", -1, 1, 65, 3, 259.494098))
sketch1.addConstraint(Sketcher.Constraint("DistanceY", -1, 1, 66, 3, 354.744098))
sketch1.addConstraint(Sketcher.Constraint("DistanceY", 36, 1, -1, 1, 414.084102))
sketch1.addConstraint(Sketcher.Constraint("DistanceY", 47, 2, -1, 1, 52.651402))
sketch1.addConstraint(Sketcher.Constraint("Distance", 0, 432.286041))
sketch1.addConstraint(Sketcher.Constraint("Distance", 1, 28.50604))
sketch1.addConstraint(Sketcher.Constraint("Distance", 25, 118.48462))
sketch1.addConstraint(Sketcher.Constraint("Distance", 32, 432.28604))
sketch1.addConstraint(Sketcher.Constraint("Distance", 42, 85.698091))
sketch1.addConstraint(Sketcher.Constraint("Distance", 43, 7.066049))
sketch1.addConstraint(Sketcher.Constraint("Distance", 46, 67.52161))
sketch1.addConstraint(Sketcher.Constraint("Distance", 48, 88.101149))
sketch1.addConstraint(Sketcher.Constraint("DistanceX", 34, 1, 34, 2, 0.643487))
sketch1.addConstraint(Sketcher.Constraint("DistanceX", 38, 1, 38, 2, 0.690696))
sketch1.addConstraint(Sketcher.Constraint("DistanceX", 50, 1, 50, 2, 68.736177))
sketch1.addConstraint(Sketcher.Constraint("DistanceX", 59, 2, 59, 1, 0.210747))
sketch1.addConstraint(Sketcher.Constraint("DistanceX", 63, 1, 63, 2, 65.774388))
sketch1.addConstraint(Sketcher.Constraint("DistanceY", 10, 1, 10, 2, 36.839413))
sketch1.addConstraint(Sketcher.Constraint("DistanceY", 18, 2, 18, 1, 143.311386))
sketch1.addConstraint(Sketcher.Constraint("DistanceY", 51, 2, 51, 1, 115.329736))
sketch1.addConstraint(Sketcher.Constraint("DistanceY", -1, 1, 3, 3, 24.491751))
sketch1.addConstraint(Sketcher.Constraint("DistanceX", -1, 1, 7, 3, 123.606041))
sketch1.addConstraint(Sketcher.Constraint("DistanceY", -1, 1, 7, 3, 187.634971))
sketch1.addConstraint(Sketcher.Constraint("DistanceY", -1, 1, 19, 3, 236.828389))
sketch1.addConstraint(Sketcher.Constraint("DistanceX", 28, 3, -1, 1, 260.26424))
sketch1.addConstraint(Sketcher.Constraint("DistanceY", -1, 1, 28, 3, 188.617009))
sketch1.addConstraint(Sketcher.Constraint("DistanceX", 29, 3, -1, 1, 260.424711))
sketch1.addConstraint(Sketcher.Constraint("DistanceX", 36, 3, -1, 1, 1.003171))
sketch1.addConstraint(Sketcher.Constraint("DistanceX", 45, 3, -1, 1, 0.100781))
sketch1.addConstraint(Sketcher.Constraint("DistanceY", -1, 1, 57, 3, 90.778389))
sketch1.addConstraint(Sketcher.Constraint("DistanceY", -1, 1, 58, 3, 154.278389))
sketch1.addConstraint(Sketcher.Constraint("DistanceY", -1, 1, 60, 3, 182.63874))
sketch1.addConstraint(Sketcher.Constraint("DistanceX", -1, 1, 61, 3, 257.158092))
sketch1.addConstraint(Sketcher.Constraint("DistanceY", 1, 2, -1, 1, 10.862721))
sketch1.addConstraint(Sketcher.Constraint("DistanceY", -1, 1, 2, 2, 12.461549))
sketch1.addConstraint(Sketcher.Constraint("DistanceY", -1, 1, 3, 1, 160.370679))
sketch1.addConstraint(Sketcher.Constraint("DistanceX", -1, 1, 4, 2, 283.113571))
sketch1.addConstraint(Sketcher.Constraint("DistanceY", -1, 1, 5, 2, 181.635659))
sketch1.addConstraint(Sketcher.Constraint("DistanceY", -1, 1, 6, 2, 181.051308))
sketch1.addConstraint(Sketcher.Constraint("DistanceY", -1, 1, 9, 1, 187.401262))
sketch1.addConstraint(Sketcher.Constraint("DistanceX", -1, 1, 11, 1, 80.94465))
sketch1.addConstraint(Sketcher.Constraint("DistanceY", -1, 1, 18, 2, 236.828389))
sketch1.addConstraint(Sketcher.Constraint("DistanceY", -1, 1, 21, 1, 224.128389))
sketch1.addConstraint(Sketcher.Constraint("DistanceY", -1, 1, 23, 1, 179.678389))
sketch1.addConstraint(Sketcher.Constraint("DistanceX", 25, 2, -1, 1, 234.864242))
sketch1.addConstraint(Sketcher.Constraint("DistanceY", -1, 1, 27, 2, 168.065829))
sketch1.addConstraint(Sketcher.Constraint("DistanceY", -1, 1, 29, 1, 10.24843))
sketch1.addConstraint(Sketcher.Constraint("DistanceX", 30, 2, -1, 1, 103.313719))
sketch1.addConstraint(Sketcher.Constraint("DistanceX", 40, 1, -1, 1, 6.32504))
sketch1.addConstraint(Sketcher.Constraint("DistanceY", 40, 1, -1, 1, 306.535779))
sketch1.addConstraint(Sketcher.Constraint("DistanceY", 42, 2, -1, 1, 52.653751))
sketch1.addConstraint(Sketcher.Constraint("DistanceY", 45, 1, -1, 1, 110.420459))
sketch1.addConstraint(Sketcher.Constraint("DistanceX", -1, 1, 46, 2, 34.13484))
sketch1.addConstraint(Sketcher.Constraint("DistanceX", -1, 1, 47, 2, 33.38561))
sketch1.addConstraint(Sketcher.Constraint("DistanceX", -1, 1, 48, 2, 24.04055))
sketch1.addConstraint(Sketcher.Constraint("DistanceX", -1, 1, 49, 2, 6.303062))
sketch1.addConstraint(Sketcher.Constraint("DistanceY", 49, 2, -1, 1, 306.533431))
sketch1.addConstraint(Sketcher.Constraint("DistanceX", -1, 1, 59, 1, 74.71162))
sketch1.addConstraint(Sketcher.Constraint("DistanceY", -1, 1, 61, 2, 44.596632))
sketch1.addConstraint(Sketcher.Constraint("DistanceY", -1, 1, 64, 2, 45.73523))
sketch1.addConstraint(Sketcher.Constraint("Distance", 6, 154.157856))
sketch1.addConstraint(Sketcher.Constraint("Distance", 12, 42.463395))
sketch1.addConstraint(Sketcher.Constraint("Distance", 26, 36.619427))
sketch1.addConstraint(Sketcher.Constraint("Distance", 31, 30.289964))
sketch1.addConstraint(Sketcher.Constraint("Distance", 44, 67.480487))
sketch1.addConstraint(Sketcher.Constraint("Distance", 47, 7.063406))
sketch1.addConstraint(Sketcher.Constraint("DistanceX", -1, 1, 2, 3, 103.176985))
sketch1.addConstraint(Sketcher.Constraint("DistanceX", -1, 1, 4, 3, 261.905188))
sketch1.addConstraint(Sketcher.Constraint("DistanceX", -1, 1, 9, 3, 80.956246))
sketch1.addConstraint(Sketcher.Constraint("DistanceY", -1, 1, 11, 3, 224.240674))
sketch1.addConstraint(Sketcher.Constraint("DistanceX", -1, 1, 13, 3, 123.396377))
sketch1.addConstraint(Sketcher.Constraint("DistanceY", -1, 1, 13, 3, 237.018202))
sketch1.addConstraint(Sketcher.Constraint("DistanceY", -1, 1, 15, 3, 380.139775))
sketch1.addConstraint(Sketcher.Constraint("DistanceX", 17, 3, -1, 1, 148.129623))
sketch1.addConstraint(Sketcher.Constraint("DistanceX", 21, 3, -1, 1, 84.143753))
sketch1.addConstraint(Sketcher.Constraint("DistanceX", 27, 3, -1, 1, 271.459336))
sketch1.addConstraint(Sketcher.Constraint("DistanceX", 33, 3, -1, 1, 20.696657))
sketch1.addConstraint(Sketcher.Constraint("DistanceX", -1, 1, 39, 3, 18.737526))
sketch1.addConstraint(Sketcher.Constraint("DistanceX", 53, 3, -1, 1, 135.429623))
sketch1.addConstraint(Sketcher.Constraint("DistanceX", 55, 3, -1, 1, 135.429623))
sketch1.addConstraint(Sketcher.Constraint("DistanceY", -1, 1, 61, 3, 28.143672))
sketch1.addConstraint(Sketcher.Constraint("DistanceX", -1, 1, 64, 3, 257.100973))
sketch1.addConstraint(Sketcher.Constraint("DistanceX", -1, 1, 0, 2, 74.606246))
sketch1.addConstraint(Sketcher.Constraint("DistanceY", 0, 2, -1, 1, 10.776475))
sketch1.addConstraint(Sketcher.Constraint("DistanceX", -1, 1, 7, 1, 123.606587))
sketch1.addConstraint(Sketcher.Constraint("DistanceY", -1, 1, 13, 2, 237.018203))
sketch1.addConstraint(Sketcher.Constraint("DistanceX", -1, 1, 15, 2, 123.396377))
sketch1.addConstraint(Sketcher.Constraint("DistanceX", 19, 2, -1, 1, 148.129623))
sketch1.addConstraint(Sketcher.Constraint("DistanceY", -1, 1, 25, 2, 179.692387))
sketch1.addConstraint(Sketcher.Constraint("DistanceX", 28, 2, -1, 1, 260.288993))
sketch1.addConstraint(Sketcher.Constraint("DistanceY", 31, 2, -1, 1, 10.329813))
sketch1.addConstraint(Sketcher.Constraint("DistanceX", 41, 2, -1, 1, 24.381244))
sketch1.addConstraint(Sketcher.Constraint("DistanceX", 43, 2, -1, 1, 34.255227))
sketch1.setExpression("Constraints[78]", "Params.sketch1_radius")
sketch1.setExpression("Constraints[79]", "Params.sketch1_radius2")
sketch1.setExpression("Constraints[80]", "Params.sketch1_diameter")
sketch1.setExpression("Constraints[81]", "Params.sketch1_diameter2")
sketch1.setExpression("Constraints[82]", "Params.sketch1_diameter3")
pad1 = doc.addObject("PartDesign::Pad", "Pad")
body.addObject(pad1)
pad1.Profile = sketch1
pad1.setExpression("Length", "Params.pad1_length")

doc.recompute()
